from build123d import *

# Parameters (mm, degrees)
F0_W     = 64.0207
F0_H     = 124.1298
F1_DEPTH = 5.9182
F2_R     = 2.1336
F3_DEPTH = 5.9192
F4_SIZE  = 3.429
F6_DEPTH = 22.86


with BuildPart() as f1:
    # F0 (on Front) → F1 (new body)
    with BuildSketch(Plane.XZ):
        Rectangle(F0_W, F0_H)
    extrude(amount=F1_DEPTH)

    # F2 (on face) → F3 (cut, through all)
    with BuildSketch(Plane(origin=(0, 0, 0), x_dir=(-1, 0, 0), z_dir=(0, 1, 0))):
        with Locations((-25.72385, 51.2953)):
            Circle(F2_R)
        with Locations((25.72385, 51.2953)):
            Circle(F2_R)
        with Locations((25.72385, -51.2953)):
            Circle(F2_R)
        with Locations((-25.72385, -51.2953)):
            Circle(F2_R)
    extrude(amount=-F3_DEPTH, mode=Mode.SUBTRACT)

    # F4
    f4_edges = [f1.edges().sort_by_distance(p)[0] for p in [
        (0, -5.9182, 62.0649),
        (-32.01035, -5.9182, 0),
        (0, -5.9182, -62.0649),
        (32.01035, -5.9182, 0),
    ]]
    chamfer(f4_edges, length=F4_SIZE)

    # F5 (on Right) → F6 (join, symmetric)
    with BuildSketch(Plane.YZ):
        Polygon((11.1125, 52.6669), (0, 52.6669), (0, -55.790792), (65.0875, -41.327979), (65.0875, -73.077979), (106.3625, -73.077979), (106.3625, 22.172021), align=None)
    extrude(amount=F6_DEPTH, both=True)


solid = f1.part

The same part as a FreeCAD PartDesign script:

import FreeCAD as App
import Part
import Sketcher

V = App.Vector
Q = App.Units.Quantity


def edges_at(feature, points):
    """Names of the edges that pass closest to the given points."""
    edges = feature.Shape.Edges
    near = lambda p: min(range(len(edges)), key=lambda i: edges[i].distToShape(Part.Vertex(*p))[0])
    return sorted({f"Edge{near(p) + 1}" for p in points})


def add_polygon(sketch, points):
    """Adds a closed chain of lines whose ends are joined by coincident constraints."""
    first, n = sketch.GeometryCount, len(points)
    for a, b in zip(points, points[1:] + points[:1]):
        sketch.addGeometry(Part.LineSegment(App.Vector(*a, 0), App.Vector(*b, 0)), False)
    for i in range(n):
        sketch.addConstraint(Sketcher.Constraint("Coincident", first + i, 2, first + (i + 1) % n, 1))

doc = App.newDocument("Part")
body = doc.addObject("PartDesign::Body", "Body")

# Sketch on XZ plane
sketch1 = doc.addObject("Sketcher::SketchObject", "Sketch")
body.addObject(sketch1)
sketch1.AttachmentSupport = (doc.XZ_Plane, [""])
sketch1.MapMode = "FlatFace"
add_polygon(sketch1, [(-32.01035, 62.0649), (-32.01035, -62.0649), (32.01035, -62.0649), (32.01035, 62.0649)])  # lines 0-3
sketch1.addConstraint([
    Sketcher.Constraint("Vertical", 0),
    Sketcher.Constraint("Horizontal", 1),
    Sketcher.Constraint("Vertical", 2),
    Sketcher.Constraint("Horizontal", 3),
    Sketcher.Constraint("Symmetric", 0, 2, 2, 2, -1, 1),
    Sketcher.Constraint("DistanceY", 0, 2, 0, 1, Q("4.887 in")),
    Sketcher.Constraint("DistanceX", 1, 1, 1, 2, Q("2.5205 in")),
])
pad1 = doc.addObject("PartDesign::Pad", "Pad")
body.addObject(pad1)
pad1.Profile = sketch1
pad1.Length = Q("0.233 in")

# Sketch on XZ plane
sketch2 = doc.addObject("Sketcher::SketchObject", "Sketch001")
body.addObject(sketch2)
sketch2.AttachmentSupport = (doc.XZ_Plane, [""])
sketch2.MapMode = "FlatFace"
sketch2.addGeometry([
    Part.Circle(V(25.72385, 51.2953, 0), V(0, 0, 1), 2.1336),
    Part.Circle(V(-25.72385, 51.2953, 0), V(0, 0, 1), 2.1336),
    Part.Circle(V(-25.72385, -51.2953, 0), V(0, 0, 1), 2.1336),
    Part.Circle(V(25.72385, -51.2953, 0), V(0, 0, 1), 2.1336),
], False)
sketch2.addConstraint([
    Sketcher.Constraint("Equal", 0, 1),
    Sketcher.Constraint("Equal", 1, 2),
    Sketcher.Constraint("Equal", 2, 3),
    Sketcher.Constraint("Symmetric", 0, 3, 2, 3, -1, 1),
    Sketcher.Constraint("Symmetric", 1, 3, 3, 3, -1, 1),
    Sketcher.Constraint("Symmetric", 0, 3, 1, 3, -2),
    Sketcher.Constraint("Diameter", 0, Q("0.168 in")),
    Sketcher.Constraint("DistanceY", 2, 3, 1, 3, Q("4.039 in")),
    Sketcher.Constraint("DistanceX", 1, 3, 0, 3, Q("2.0255 in")),
])
pocket1 = doc.addObject("PartDesign::Pocket", "Pocket")
body.addObject(pocket1)
pocket1.Profile = sketch2
pocket1.Type = "ThroughAll"
pocket1.Reversed = True
doc.recompute()

chamfer = doc.addObject("PartDesign::Chamfer", "Chamfer")
body.addObject(chamfer)
chamfer.Base = (pocket1, edges_at(pocket1, [
    (0, -5.918, 62.065),
    (-32.01, -5.918, 0),
    (0, -5.918, -62.065),
    (32.01, -5.918, 0),
]))
chamfer.Size = Q("0.135 in")

# Sketch on YZ plane
sketch3 = doc.addObject("Sketcher::SketchObject", "Sketch002")
body.addObject(sketch3)
sketch3.AttachmentSupport = (doc.YZ_Plane, [""])
sketch3.MapMode = "FlatFace"
add_polygon(sketch3, [(11.1125, 52.6669), (0, 52.6669), (0, -55.790792), (65.0875, -41.327979), (65.0875, -73.077979), (106.3625, -73.077979), (106.3625, 22.172021)])  # lines 0-6
sketch3.addConstraint([
    Sketcher.Constraint("Horizontal", 0),
    Sketcher.Constraint("Vertical", 1),
    Sketcher.Constraint("Vertical", 3),
    Sketcher.Constraint("Horizontal", 4),
    Sketcher.Constraint("Vertical", 5),
    Sketcher.Constraint("PointOnObject", 0, 2, -2),
    Sketcher.Constraint("DistanceY", 3, 2, 3, 1, Q("1.25 in")),
    Sketcher.Constraint("DistanceY", 5, 1, 5, 2, Q("3.75 in")),
    Sketcher.Constraint("DistanceX", 0, 2, 0, 1, Q("0.4375 in")),
    Sketcher.Constraint("DistanceX", 4, 1, 4, 2, Q("1.625 in")),
    Sketcher.Constraint("DistanceX", 6, 2, 5, 2, Q("3.75 in")),
    Sketcher.Constraint("Distance", 2, Q("2.625 in")),
    Sketcher.Constraint("Distance", 6, Q("3.9375 in")),
    Sketcher.Constraint("DistanceY", -1, 1, 0, 2, Q("2.0735 in")),
])
pad2 = doc.addObject("PartDesign::Pad", "Pad001")
body.addObject(pad2)
pad2.Profile = sketch3
pad2.Length = Q("1.8 in")
pad2.Midplane = True

doc.recompute()
